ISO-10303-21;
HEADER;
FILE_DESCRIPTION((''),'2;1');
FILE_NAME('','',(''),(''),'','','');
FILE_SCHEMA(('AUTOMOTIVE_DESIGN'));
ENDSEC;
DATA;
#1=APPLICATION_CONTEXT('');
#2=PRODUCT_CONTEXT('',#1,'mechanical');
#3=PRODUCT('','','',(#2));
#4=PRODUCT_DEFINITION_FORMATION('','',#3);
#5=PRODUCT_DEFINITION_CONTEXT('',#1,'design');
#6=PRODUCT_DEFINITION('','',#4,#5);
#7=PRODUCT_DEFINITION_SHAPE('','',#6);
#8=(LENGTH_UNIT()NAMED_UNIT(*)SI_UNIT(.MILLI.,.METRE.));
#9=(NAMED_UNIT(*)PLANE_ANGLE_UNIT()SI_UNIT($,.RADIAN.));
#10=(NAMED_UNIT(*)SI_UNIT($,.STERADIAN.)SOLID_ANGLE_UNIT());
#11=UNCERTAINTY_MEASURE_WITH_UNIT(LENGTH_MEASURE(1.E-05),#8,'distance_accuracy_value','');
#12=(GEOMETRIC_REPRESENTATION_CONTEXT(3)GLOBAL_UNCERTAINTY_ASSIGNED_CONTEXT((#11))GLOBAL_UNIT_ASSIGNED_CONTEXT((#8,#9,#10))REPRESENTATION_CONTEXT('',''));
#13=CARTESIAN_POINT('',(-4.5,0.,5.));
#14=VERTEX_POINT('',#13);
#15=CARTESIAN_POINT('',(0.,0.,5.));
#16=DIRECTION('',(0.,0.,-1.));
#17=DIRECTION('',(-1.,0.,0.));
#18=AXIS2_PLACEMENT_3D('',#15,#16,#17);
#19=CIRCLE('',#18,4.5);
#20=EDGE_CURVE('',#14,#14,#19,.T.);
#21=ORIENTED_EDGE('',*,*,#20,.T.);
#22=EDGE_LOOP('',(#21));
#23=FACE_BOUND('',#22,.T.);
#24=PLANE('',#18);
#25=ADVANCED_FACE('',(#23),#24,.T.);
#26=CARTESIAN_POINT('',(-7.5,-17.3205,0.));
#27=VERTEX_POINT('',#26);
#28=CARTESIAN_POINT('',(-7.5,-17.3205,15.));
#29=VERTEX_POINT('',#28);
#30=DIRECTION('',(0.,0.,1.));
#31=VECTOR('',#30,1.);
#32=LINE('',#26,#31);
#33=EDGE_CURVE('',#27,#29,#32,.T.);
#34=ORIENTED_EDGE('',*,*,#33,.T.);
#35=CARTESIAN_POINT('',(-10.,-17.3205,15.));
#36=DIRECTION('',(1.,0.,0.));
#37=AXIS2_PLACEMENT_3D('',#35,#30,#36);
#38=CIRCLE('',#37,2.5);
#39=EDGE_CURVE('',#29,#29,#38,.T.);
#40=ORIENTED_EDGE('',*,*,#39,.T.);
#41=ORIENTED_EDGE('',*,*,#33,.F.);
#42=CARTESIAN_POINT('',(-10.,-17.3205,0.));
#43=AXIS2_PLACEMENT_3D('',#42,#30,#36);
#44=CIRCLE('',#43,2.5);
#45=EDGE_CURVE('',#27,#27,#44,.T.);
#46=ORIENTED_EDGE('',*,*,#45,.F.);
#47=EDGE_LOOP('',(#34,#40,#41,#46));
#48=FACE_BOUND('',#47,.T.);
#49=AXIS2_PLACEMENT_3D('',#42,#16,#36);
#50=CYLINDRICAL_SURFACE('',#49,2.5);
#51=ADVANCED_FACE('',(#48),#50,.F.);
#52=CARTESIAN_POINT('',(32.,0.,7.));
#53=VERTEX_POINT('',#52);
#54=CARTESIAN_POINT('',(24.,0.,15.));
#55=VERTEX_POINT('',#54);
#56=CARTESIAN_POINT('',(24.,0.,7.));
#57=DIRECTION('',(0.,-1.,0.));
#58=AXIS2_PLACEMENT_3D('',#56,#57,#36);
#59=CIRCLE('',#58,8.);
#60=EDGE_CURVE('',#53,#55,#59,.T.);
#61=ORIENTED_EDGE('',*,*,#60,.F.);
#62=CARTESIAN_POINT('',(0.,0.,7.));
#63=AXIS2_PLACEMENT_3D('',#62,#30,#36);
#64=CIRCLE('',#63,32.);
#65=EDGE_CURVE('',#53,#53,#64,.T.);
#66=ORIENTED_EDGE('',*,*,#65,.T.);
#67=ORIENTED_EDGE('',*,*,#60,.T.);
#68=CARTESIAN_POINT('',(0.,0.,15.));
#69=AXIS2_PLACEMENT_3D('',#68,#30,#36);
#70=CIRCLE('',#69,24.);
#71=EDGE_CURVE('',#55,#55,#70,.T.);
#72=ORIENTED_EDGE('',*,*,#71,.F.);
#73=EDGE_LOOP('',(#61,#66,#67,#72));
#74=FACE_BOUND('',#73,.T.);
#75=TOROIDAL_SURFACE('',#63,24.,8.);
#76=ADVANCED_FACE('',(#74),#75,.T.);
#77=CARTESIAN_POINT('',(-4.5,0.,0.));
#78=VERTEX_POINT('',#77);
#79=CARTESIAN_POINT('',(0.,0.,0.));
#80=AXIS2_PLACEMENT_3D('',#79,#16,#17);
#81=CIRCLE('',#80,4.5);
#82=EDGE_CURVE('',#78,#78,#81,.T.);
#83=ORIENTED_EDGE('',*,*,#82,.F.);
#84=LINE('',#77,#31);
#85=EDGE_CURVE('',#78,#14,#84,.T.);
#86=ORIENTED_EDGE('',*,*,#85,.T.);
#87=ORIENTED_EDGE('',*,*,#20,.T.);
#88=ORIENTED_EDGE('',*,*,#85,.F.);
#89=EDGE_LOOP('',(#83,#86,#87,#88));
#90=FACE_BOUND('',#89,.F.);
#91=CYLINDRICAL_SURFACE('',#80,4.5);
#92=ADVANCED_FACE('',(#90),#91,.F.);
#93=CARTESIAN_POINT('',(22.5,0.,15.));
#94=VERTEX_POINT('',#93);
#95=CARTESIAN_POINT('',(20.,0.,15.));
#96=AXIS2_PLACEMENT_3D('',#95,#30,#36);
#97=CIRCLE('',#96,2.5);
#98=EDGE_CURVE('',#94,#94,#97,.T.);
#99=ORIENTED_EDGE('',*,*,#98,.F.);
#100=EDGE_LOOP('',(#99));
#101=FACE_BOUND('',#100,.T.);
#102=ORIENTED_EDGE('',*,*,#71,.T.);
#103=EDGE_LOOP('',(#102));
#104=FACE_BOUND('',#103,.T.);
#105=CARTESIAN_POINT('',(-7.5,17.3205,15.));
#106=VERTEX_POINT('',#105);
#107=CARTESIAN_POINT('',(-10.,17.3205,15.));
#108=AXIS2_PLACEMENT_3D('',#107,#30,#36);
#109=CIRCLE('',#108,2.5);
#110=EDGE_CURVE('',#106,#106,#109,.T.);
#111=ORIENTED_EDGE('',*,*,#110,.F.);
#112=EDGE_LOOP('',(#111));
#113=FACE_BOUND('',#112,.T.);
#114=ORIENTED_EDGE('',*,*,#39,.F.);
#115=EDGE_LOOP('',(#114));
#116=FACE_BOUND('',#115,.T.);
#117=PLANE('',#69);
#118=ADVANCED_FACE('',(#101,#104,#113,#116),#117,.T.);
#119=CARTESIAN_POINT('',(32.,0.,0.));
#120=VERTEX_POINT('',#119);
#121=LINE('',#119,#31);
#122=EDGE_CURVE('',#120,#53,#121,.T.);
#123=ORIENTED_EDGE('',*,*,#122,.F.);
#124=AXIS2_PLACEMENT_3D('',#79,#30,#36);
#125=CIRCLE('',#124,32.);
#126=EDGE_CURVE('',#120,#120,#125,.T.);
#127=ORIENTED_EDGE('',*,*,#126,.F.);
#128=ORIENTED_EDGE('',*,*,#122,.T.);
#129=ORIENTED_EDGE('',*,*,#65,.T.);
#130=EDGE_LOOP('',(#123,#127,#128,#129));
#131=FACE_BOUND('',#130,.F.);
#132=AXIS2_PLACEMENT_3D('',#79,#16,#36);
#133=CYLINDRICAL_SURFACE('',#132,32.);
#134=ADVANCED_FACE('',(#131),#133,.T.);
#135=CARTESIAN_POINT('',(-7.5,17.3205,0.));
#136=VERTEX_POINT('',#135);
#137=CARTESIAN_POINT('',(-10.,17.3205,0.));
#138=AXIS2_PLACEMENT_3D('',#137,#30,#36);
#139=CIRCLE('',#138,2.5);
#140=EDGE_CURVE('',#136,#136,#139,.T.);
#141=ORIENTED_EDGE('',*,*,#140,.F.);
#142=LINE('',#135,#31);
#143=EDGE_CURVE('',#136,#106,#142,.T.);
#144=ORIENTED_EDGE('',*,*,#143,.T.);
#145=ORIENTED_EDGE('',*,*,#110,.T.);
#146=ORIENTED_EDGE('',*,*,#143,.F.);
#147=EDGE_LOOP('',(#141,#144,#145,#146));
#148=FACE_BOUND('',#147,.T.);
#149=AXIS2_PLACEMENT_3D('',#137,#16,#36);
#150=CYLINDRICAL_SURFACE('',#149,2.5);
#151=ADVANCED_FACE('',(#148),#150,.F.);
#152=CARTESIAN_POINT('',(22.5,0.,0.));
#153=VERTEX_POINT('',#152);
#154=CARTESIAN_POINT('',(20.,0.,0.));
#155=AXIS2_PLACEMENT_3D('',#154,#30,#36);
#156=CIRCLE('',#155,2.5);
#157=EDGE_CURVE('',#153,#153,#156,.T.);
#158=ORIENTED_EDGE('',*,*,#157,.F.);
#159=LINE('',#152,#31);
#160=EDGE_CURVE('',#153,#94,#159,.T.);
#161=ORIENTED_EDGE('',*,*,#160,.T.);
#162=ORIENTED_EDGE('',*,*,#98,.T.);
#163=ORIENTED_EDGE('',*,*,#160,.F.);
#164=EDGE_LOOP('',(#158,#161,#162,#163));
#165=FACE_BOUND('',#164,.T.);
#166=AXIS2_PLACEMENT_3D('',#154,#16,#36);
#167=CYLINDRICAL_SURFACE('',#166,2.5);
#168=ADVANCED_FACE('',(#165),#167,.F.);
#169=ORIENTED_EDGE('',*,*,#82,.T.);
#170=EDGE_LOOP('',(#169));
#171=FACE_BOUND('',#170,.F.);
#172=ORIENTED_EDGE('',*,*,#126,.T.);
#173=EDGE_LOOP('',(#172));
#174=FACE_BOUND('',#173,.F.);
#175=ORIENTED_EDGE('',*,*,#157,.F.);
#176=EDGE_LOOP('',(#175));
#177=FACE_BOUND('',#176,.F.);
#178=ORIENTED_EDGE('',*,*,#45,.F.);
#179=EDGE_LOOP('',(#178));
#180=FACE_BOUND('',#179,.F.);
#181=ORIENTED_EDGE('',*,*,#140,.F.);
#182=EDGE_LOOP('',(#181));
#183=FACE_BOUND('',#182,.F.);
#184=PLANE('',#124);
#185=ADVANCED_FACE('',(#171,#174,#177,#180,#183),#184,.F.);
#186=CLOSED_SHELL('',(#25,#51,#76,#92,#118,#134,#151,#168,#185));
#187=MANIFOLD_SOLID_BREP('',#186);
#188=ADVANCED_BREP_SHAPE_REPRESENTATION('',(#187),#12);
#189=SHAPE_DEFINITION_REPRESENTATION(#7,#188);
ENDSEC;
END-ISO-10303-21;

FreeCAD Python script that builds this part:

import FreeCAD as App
import Part
import Sketcher
Q = App.Units.Quantity


def edges_at(feature, points):
    """Names of the edges that pass closest to the given points."""
    edges = feature.Shape.Edges
    near = lambda p: min(range(len(edges)), key=lambda i: edges[i].distToShape(Part.Vertex(*p))[0])
    return sorted({f"Edge{near(p) + 1}" for p in points})

doc = App.newDocument("Part")
body = doc.addObject("PartDesign::Body", "Body")

# Sketch on XY plane
sketch1 = body.newObject("Sketcher::SketchObject", "Sketch")
sketch1.AttachmentSupport = (doc.getObject("XY_Plane"), [""])
sketch1.MapMode = "FlatFace"
sketch1.addGeometry(Part.Circle(App.Vector(0, 0, 0), App.Vector(0, 0, 1), 32), False)
sketch1.addGeometry(Part.Circle(App.Vector(-10, -17.3, 0), App.Vector(0, 0, 1), 2.5), False)
sketch1.addGeometry(Part.Circle(App.Vector(-10, 17.3, 0), App.Vector(0, 0, 1), 2.5), False)
sketch1.addGeometry(Part.Circle(App.Vector(20, 0, 0), App.Vector(0, 0, 1), 2.5), False)
sketch1.addConstraint(Sketcher.Constraint("Coincident", 0, 3, -1, 1))
sketch1.addConstraint(Sketcher.Constraint("Equal", 1, 2))
sketch1.addConstraint(Sketcher.Constraint("Equal", 2, 3))
sketch1.addConstraint(Sketcher.Constraint("Symmetric", 1, 3, 2, 3, -1))
sketch1.addConstraint(Sketcher.Constraint("PointOnObject", 3, 3, -1))
sketch1.addConstraint(Sketcher.Constraint("Diameter", 0, Q("64 mm")))
sketch1.addConstraint(Sketcher.Constraint("Diameter", 1, Q("5 mm")))
sketch1.addConstraint(Sketcher.Constraint("DistanceX", -1, 1, 3, 3, Q("20 mm")))
sketch1.addConstraint(Sketcher.Constraint("DistanceX", 1, 3, -1, 1, Q("10 mm")))
sketch1.addConstraint(Sketcher.Constraint("DistanceY", 1, 3, 2, 3, Q("34.641 mm")))
pad1 = body.newObject("PartDesign::Pad", "Pad")
pad1.Profile = sketch1
pad1.Length = 15

# Sketch on XY plane
sketch2 = body.newObject("Sketcher::SketchObject", "Sketch001")
sketch2.AttachmentSupport = (doc.getObject("XY_Plane"), [""])
sketch2.MapMode = "FlatFace"
sketch2.addGeometry(Part.Circle(App.Vector(0, 0, 0), App.Vector(0, 0, 1), 4.5), False)
sketch2.addConstraint(Sketcher.Constraint("Coincident", 0, 3, -1, 1))
sketch2.addConstraint(Sketcher.Constraint("Diameter", 0, Q("9 mm")))
pocket1 = body.newObject("PartDesign::Pocket", "Pocket")
pocket1.Profile = sketch2
pocket1.Length = 5
pocket1.Reversed = True
doc.recompute()

fillet = body.newObject("PartDesign::Fillet", "Fillet")
fillet.Base = (pocket1, edges_at(pocket1, [(-32, 0, 15)]))
fillet.Radius = 8

doc.recompute()
